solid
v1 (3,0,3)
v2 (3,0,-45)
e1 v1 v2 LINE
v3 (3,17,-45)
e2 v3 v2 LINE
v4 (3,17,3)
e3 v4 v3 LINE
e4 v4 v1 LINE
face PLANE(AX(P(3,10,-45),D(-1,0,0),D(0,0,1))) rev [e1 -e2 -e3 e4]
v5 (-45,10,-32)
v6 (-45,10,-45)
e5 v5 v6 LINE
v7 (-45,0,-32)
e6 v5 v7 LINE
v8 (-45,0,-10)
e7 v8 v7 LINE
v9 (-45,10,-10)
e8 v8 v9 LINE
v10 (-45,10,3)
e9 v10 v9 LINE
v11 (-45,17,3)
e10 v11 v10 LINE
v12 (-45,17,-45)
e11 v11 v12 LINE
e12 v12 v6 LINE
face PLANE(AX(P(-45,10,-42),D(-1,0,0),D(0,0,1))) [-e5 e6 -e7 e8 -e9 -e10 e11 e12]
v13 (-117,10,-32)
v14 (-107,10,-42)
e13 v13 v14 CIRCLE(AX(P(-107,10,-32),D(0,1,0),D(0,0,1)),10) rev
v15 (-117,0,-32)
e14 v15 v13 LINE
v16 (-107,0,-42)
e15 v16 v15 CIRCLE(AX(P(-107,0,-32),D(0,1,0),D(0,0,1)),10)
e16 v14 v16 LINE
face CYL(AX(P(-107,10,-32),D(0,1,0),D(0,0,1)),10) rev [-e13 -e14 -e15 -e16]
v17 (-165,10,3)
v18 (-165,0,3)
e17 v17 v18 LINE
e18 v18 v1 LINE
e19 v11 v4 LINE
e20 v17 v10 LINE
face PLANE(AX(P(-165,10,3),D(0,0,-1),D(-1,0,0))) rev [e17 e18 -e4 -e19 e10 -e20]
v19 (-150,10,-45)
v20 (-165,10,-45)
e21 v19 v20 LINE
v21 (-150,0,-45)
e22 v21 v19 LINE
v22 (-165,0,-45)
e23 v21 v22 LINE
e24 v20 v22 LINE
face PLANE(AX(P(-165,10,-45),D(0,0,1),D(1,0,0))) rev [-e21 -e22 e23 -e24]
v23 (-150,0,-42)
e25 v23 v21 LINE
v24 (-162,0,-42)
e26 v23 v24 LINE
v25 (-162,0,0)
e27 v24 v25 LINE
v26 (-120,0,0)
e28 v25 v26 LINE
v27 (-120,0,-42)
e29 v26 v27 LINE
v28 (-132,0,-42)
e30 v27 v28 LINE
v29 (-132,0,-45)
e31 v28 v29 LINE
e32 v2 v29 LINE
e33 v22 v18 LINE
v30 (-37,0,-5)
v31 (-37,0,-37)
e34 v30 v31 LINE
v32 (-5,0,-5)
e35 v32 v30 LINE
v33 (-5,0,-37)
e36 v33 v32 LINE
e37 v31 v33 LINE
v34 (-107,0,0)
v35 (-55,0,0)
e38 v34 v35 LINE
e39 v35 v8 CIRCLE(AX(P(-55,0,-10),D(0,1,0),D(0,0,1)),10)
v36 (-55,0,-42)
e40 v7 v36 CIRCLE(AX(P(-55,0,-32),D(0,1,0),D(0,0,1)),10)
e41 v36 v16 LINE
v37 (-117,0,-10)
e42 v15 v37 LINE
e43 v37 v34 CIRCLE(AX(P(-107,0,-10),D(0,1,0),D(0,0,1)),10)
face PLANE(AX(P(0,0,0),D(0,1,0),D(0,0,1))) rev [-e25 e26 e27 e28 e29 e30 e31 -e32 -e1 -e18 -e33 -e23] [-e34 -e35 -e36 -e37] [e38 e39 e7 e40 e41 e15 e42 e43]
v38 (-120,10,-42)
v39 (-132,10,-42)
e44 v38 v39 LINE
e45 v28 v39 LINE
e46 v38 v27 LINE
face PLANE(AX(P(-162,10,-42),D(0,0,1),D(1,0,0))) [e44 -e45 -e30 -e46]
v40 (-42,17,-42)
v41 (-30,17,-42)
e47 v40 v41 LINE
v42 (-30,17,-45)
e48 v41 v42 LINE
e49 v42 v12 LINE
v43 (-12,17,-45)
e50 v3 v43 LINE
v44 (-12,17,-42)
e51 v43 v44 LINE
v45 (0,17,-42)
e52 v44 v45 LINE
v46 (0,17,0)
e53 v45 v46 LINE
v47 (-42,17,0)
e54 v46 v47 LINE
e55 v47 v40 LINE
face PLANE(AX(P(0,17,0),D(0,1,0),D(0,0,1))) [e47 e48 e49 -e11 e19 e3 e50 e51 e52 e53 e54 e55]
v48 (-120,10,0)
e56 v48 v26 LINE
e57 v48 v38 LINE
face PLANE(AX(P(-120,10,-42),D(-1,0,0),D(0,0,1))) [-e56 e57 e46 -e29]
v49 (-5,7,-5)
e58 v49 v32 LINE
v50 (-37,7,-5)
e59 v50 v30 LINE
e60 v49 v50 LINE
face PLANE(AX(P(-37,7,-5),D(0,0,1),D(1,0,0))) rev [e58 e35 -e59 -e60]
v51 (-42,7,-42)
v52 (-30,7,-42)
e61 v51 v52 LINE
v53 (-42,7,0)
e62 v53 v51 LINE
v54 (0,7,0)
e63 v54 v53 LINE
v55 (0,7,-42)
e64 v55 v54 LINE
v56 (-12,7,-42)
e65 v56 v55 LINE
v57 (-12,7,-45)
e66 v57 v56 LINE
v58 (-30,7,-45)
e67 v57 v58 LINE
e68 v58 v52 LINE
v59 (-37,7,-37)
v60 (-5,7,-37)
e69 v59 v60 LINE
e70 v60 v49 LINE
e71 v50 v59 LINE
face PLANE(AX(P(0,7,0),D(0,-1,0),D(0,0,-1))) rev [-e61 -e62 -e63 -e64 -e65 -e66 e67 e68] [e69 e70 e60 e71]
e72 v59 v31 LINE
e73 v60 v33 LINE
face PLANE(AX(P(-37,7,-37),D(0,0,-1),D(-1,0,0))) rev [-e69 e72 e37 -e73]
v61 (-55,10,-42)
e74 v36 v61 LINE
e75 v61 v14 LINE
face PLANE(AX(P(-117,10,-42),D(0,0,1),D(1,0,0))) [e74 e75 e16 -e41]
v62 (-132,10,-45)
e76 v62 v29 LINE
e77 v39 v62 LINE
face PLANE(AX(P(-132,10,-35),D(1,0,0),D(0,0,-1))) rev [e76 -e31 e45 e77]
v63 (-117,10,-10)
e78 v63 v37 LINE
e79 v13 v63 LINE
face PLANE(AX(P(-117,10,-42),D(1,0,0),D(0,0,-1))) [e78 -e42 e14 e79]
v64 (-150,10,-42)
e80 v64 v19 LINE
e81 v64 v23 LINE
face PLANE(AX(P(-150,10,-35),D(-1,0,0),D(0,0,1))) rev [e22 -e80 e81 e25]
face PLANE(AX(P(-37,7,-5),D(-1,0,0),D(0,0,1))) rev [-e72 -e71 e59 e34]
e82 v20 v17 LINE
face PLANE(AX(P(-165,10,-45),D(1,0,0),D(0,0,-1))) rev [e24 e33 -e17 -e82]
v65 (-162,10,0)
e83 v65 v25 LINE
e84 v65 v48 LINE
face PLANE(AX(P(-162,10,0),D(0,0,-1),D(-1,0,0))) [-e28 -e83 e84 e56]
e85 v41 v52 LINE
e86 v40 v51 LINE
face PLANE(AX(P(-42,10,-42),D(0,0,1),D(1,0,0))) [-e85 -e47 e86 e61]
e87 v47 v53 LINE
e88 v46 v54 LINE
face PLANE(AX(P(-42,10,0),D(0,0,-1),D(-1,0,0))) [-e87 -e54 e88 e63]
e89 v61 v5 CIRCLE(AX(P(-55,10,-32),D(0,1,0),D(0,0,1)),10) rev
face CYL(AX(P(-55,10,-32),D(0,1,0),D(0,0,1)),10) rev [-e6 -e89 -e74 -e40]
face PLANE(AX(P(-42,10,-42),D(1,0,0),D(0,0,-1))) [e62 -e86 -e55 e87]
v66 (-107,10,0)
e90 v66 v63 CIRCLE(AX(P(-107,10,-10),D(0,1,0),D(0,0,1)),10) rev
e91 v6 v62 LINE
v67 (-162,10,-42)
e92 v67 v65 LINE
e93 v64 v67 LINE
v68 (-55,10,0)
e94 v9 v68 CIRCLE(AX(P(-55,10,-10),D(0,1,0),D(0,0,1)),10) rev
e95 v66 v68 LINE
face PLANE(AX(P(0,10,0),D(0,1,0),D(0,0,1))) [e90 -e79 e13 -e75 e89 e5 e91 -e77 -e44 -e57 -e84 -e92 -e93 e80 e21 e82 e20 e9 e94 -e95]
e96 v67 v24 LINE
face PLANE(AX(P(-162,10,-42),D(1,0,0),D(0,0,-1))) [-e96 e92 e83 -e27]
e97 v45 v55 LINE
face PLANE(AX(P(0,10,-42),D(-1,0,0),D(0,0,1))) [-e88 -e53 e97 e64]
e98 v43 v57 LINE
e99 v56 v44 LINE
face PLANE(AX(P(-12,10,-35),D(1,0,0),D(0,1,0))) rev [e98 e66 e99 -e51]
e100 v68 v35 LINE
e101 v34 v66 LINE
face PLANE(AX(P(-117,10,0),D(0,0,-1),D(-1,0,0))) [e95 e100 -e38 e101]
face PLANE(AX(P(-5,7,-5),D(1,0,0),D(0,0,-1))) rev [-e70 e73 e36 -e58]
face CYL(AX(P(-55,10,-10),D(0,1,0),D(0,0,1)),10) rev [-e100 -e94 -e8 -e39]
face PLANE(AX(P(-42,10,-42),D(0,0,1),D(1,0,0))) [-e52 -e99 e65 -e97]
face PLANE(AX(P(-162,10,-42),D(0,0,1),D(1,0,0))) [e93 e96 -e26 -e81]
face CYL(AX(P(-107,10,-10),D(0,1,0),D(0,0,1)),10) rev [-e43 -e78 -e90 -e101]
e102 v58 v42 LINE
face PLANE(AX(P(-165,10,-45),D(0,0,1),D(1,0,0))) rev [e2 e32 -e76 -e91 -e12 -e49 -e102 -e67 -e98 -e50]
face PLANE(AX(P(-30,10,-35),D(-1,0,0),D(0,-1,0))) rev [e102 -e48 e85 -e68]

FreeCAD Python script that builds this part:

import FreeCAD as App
import Part
import Sketcher


def edges_at(feature, points):
    """Names of the edges that pass closest to the given points."""
    edges = feature.Shape.Edges
    near = lambda p: min(range(len(edges)), key=lambda i: edges[i].distToShape(Part.Vertex(*p))[0])
    return sorted({f"Edge{near(p) + 1}" for p in points})


def add_polygon(sketch, points):
    """Adds a closed chain of lines whose ends are joined by coincident constraints."""
    first, n = sketch.GeometryCount, len(points)
    for a, b in zip(points, points[1:] + points[:1]):
        sketch.addGeometry(Part.LineSegment(App.Vector(*a, 0), App.Vector(*b, 0)), False)
    for i in range(n):
        sketch.addConstraint(Sketcher.Constraint("Coincident", first + i, 2, first + (i + 1) % n, 1))

doc = App.newDocument("Part")
body = doc.addObject("PartDesign::Body", "Body")

# Sketch on XZ plane
sketch1 = body.newObject("Sketcher::SketchObject", "Sketch")
sketch1.AttachmentSupport = (doc.getObject("XZ_Plane"), [""])
sketch1.MapMode = "FlatFace"
add_polygon(sketch1, [(-165, -45), (-165, 3), (3, 3), (3, -45)])  # lines 0-3
add_polygon(sketch1, [(-120, 0), (-162, 0), (-162, -42), (-120, -42)])  # lines 4-7
add_polygon(sketch1, [(-45, 0), (-117, 0), (-117, -42), (-45, -42)])  # lines 8-11
add_polygon(sketch1, [(0, 0), (-42, 0), (-42, -42), (0, -42)])  # lines 12-15
sketch1.addConstraint([
    Sketcher.Constraint("Vertical", 0),
    Sketcher.Constraint("Horizontal", 1),
    Sketcher.Constraint("Vertical", 2),
    Sketcher.Constraint("Horizontal", 3),
    Sketcher.Constraint("Horizontal", 4),
    Sketcher.Constraint("Vertical", 5),
    Sketcher.Constraint("Horizontal", 6),
    Sketcher.Constraint("Vertical", 7),
    Sketcher.Constraint("Horizontal", 8),
    Sketcher.Constraint("Vertical", 9),
    Sketcher.Constraint("Horizontal", 10),
    Sketcher.Constraint("Vertical", 11),
    Sketcher.Constraint("Horizontal", 12),
    Sketcher.Constraint("Vertical", 13),
    Sketcher.Constraint("Horizontal", 14),
    Sketcher.Constraint("Vertical", 15),
    Sketcher.Constraint("Coincident", 15, 2, -1, 1),
    Sketcher.Constraint("PointOnObject", 4, 2, -1),
    Sketcher.Constraint("PointOnObject", 8, 2, -1),
    Sketcher.Constraint("Horizontal", 6, 2, 9, 2),
    Sketcher.Constraint("Horizontal", 10, 2, 13, 2),
    Sketcher.Constraint("Equal", 6, 12),
    Sketcher.Constraint("Equal", 14, 5),
    Sketcher.Constraint("DistanceX", 1, 1, 1, 2, 168.0),
    Sketcher.Constraint("DistanceX", 4, 2, 4, 1, 42.0),
    Sketcher.Constraint("DistanceX", 8, 2, 8, 1, 72.0),
    Sketcher.Constraint("DistanceY", 0, 1, 0, 2, 48.0),
    Sketcher.Constraint("DistanceX", 0, 2, -1, 1, 165.0),
    Sketcher.Constraint("DistanceY", -1, 1, 0, 2, 3.0),
    Sketcher.Constraint("DistanceX", 4, 2, -1, 1, 162.0),
    Sketcher.Constraint("DistanceX", 8, 2, -1, 1, 117.0),
])
pad1 = body.newObject("PartDesign::Pad", "Pad")
pad1.Profile = sketch1
pad1.Length = 10
pad1.Reversed = True

# Sketch on XY plane
sketch2 = body.newObject("Sketcher::SketchObject", "Sketch001")
sketch2.AttachmentSupport = (doc.getObject("XY_Plane"), [""])
sketch2.MapMode = "FlatFace"
sketch2.AttachmentOffset = App.Placement(App.Vector(0, 0, -45), App.Rotation())
add_polygon(sketch2, [(-12, 10), (-12, 0), (-30, 0), (-30, 10)])  # lines 0-3
add_polygon(sketch2, [(-132, 10), (-132, 0), (-150, 0), (-150, 10)])  # lines 4-7
sketch2.addConstraint([
    Sketcher.Constraint("Vertical", 0),
    Sketcher.Constraint("Horizontal", 1),
    Sketcher.Constraint("Vertical", 2),
    Sketcher.Constraint("Horizontal", 3),
    Sketcher.Constraint("Vertical", 4),
    Sketcher.Constraint("Horizontal", 5),
    Sketcher.Constraint("Vertical", 6),
    Sketcher.Constraint("Horizontal", 7),
    Sketcher.Constraint("PointOnObject", 0, 2, -1),
    Sketcher.Constraint("PointOnObject", 4, 2, -1),
    Sketcher.Constraint("Horizontal", 3, 2, 6, 2),
    Sketcher.Constraint("Equal", 3, 5),
    Sketcher.Constraint("DistanceX", 1, 2, 1, 1, 18.0),
    Sketcher.Constraint("DistanceY", 0, 2, 0, 1, 10.0),
    Sketcher.Constraint("DistanceX", 0, 2, -1, 1, 12.0),
    Sketcher.Constraint("DistanceX", 4, 2, -1, 1, 132.0),
])
pocket1 = body.newObject("PartDesign::Pocket", "Pocket")
pocket1.Profile = sketch2
pocket1.Length = 10
pocket1.Reversed = True

# Sketch on XZ plane
sketch3 = body.newObject("Sketcher::SketchObject", "Sketch002")
sketch3.AttachmentSupport = (doc.getObject("XZ_Plane"), [""])
sketch3.MapMode = "FlatFace"
add_polygon(sketch3, [(-42, 0), (-42, -42), (0, -42), (0, 0)])  # lines 0-3
add_polygon(sketch3, [(-5, -37), (-37, -37), (-37, -5), (-5, -5)])  # lines 4-7
sketch3.addConstraint([
    Sketcher.Constraint("Vertical", 0),
    Sketcher.Constraint("Horizontal", 1),
    Sketcher.Constraint("Vertical", 2),
    Sketcher.Constraint("Horizontal", 3),
    Sketcher.Constraint("Horizontal", 4),
    Sketcher.Constraint("Vertical", 5),
    Sketcher.Constraint("Horizontal", 6),
    Sketcher.Constraint("Vertical", 7),
    Sketcher.Constraint("Coincident", 2, 2, -1, 1),
    Sketcher.Constraint("Equal", 3, 0),
    Sketcher.Constraint("Equal", 6, 5),
    Sketcher.Constraint("DistanceX", 1, 1, 1, 2, 42.0),
    Sketcher.Constraint("DistanceX", 4, 2, 4, 1, 32.0),
    Sketcher.Constraint("DistanceX", 4, 2, -1, 1, 37.0),
    Sketcher.Constraint("DistanceY", 4, 2, -1, 1, 37.0),
])
pad2 = body.newObject("PartDesign::Pad", "Pad001")
pad2.Profile = sketch3
pad2.Length = 7
pad2.Reversed = True

# Sketch on XZ plane
sketch4 = body.newObject("Sketcher::SketchObject", "Sketch003")
sketch4.AttachmentSupport = (doc.getObject("XZ_Plane"), [""])
sketch4.MapMode = "FlatFace"
sketch4.AttachmentOffset = App.Placement(App.Vector(0, 0, -10), App.Rotation())
add_polygon(sketch4, [(-42, -42), (-30, -42), (-30, -45), (-45, -45), (-45, 3), (3, 3), (3, -45), (-12, -45), (-12, -42), (0, -42), (0, 0), (-42, 0)])  # lines 0-11
sketch4.addConstraint([
    Sketcher.Constraint("Horizontal", 0),
    Sketcher.Constraint("Vertical", 1),
    Sketcher.Constraint("Horizontal", 2),
    Sketcher.Constraint("Vertical", 3),
    Sketcher.Constraint("Horizontal", 4),
    Sketcher.Constraint("Vertical", 5),
    Sketcher.Constraint("Horizontal", 6),
    Sketcher.Constraint("Vertical", 7),
    Sketcher.Constraint("Horizontal", 8),
    Sketcher.Constraint("Vertical", 9),
    Sketcher.Constraint("Horizontal", 10),
    Sketcher.Constraint("Vertical", 11),
    Sketcher.Constraint("Coincident", 9, 2, -1, 1),
    Sketcher.Constraint("Horizontal", 2, 2, 5, 2),
    Sketcher.Constraint("Horizontal", 0, 2, 7, 2),
    Sketcher.Constraint("Equal", 2, 6),
    Sketcher.Constraint("Equal", 0, 8),
    Sketcher.Constraint("Equal", 4, 3),
    Sketcher.Constraint("Equal", 10, 9),
    Sketcher.Constraint("DistanceX", 0, 1, 0, 2, 12.0),
    Sketcher.Constraint("DistanceX", 2, 2, 2, 1, 15.0),
    Sketcher.Constraint("DistanceX", 4, 1, 4, 2, 48.0),
    Sketcher.Constraint("DistanceY", 1, 2, 1, 1, 3.0),
])
pad3 = body.newObject("PartDesign::Pad", "Pad002")
pad3.Profile = sketch4
pad3.Length = 7
pad3.Reversed = True
doc.recompute()

fillet = body.newObject("PartDesign::Fillet", "Fillet")
fillet.Base = (pad3, edges_at(pad3, [
    (-117, 5, -42),
    (-117, 5, 0),
    (-45, 5, 0),
    (-45, 5, -42),
]))
fillet.Radius = 10

# Sketch on XY plane
sketch5 = body.newObject("Sketcher::SketchObject", "Sketch004")
sketch5.AttachmentSupport = (doc.getObject("XY_Plane"), [""])
sketch5.MapMode = "FlatFace"
sketch5.AttachmentOffset = App.Placement(App.Vector(0, 0, -42), App.Rotation())
add_polygon(sketch5, [(-12, 7), (-12, 0), (-30, 0), (-30, 7)])  # lines 0-3
sketch5.addConstraint([
    Sketcher.Constraint("Vertical", 0),
    Sketcher.Constraint("Horizontal", 1),
    Sketcher.Constraint("Vertical", 2),
    Sketcher.Constraint("Horizontal", 3),
    Sketcher.Constraint("PointOnObject", 0, 2, -1),
    Sketcher.Constraint("DistanceX", 1, 2, 1, 1, 18.0),
    Sketcher.Constraint("DistanceY", 0, 2, 0, 1, 7.0),
    Sketcher.Constraint("DistanceX", 0, 2, -1, 1, 12.0),
])
pad4 = body.newObject("PartDesign::Pad", "Pad003")
pad4.Profile = sketch5
pad4.Length = 3
pad4.Reversed = True

doc.recompute()
